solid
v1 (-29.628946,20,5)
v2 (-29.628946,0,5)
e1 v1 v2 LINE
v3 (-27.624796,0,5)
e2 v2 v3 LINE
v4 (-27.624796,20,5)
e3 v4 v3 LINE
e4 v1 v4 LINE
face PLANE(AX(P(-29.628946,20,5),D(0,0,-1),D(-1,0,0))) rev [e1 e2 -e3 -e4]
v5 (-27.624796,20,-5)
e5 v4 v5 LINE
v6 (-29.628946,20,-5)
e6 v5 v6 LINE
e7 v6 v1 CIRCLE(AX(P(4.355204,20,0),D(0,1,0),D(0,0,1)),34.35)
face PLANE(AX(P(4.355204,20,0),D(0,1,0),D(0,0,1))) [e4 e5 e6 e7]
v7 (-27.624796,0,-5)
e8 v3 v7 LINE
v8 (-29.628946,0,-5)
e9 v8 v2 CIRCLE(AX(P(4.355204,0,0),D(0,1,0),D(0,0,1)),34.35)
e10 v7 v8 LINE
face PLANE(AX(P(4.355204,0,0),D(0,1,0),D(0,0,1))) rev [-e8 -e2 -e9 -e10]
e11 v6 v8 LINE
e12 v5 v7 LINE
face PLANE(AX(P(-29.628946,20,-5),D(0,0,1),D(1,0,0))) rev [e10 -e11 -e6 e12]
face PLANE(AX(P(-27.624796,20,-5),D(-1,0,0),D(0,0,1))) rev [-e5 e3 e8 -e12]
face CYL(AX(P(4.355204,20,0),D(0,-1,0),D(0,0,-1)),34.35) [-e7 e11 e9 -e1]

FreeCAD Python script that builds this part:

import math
import FreeCAD as App
import Part
import Sketcher

doc = App.newDocument("Part")
body = doc.addObject("PartDesign::Body", "Body")

sketch1 = body.newObject("Sketcher::SketchObject", "Sketch")
sketch1.AttachmentSupport = (doc.getObject("XZ_Plane"), [""])
sketch1.MapMode = "FlatFace"
sketch1.addGeometry([
    Part.LineSegment(App.Vector(-27.6, -5, 0), App.Vector(-29.6, -5, 0)),
    Part.ArcOfCircle(Part.Circle(App.Vector(4.4, 0, 0), App.Vector(0, 0, 1), 34.4), math.radians(171.63), math.radians(188.37)),
    Part.LineSegment(App.Vector(-29.6, 5, 0), App.Vector(-27.6, 5, 0)),
    Part.LineSegment(App.Vector(-27.6, 5, 0), App.Vector(-27.6, -5, 0)),
], False)
sketch1.addConstraint([
    Sketcher.Constraint("Coincident", 0, 2, 1, 2),
    Sketcher.Constraint("Coincident", 1, 1, 2, 1),
    Sketcher.Constraint("Coincident", 2, 2, 3, 1),
    Sketcher.Constraint("Coincident", 3, 2, 0, 1),
    Sketcher.Constraint("Horizontal", 0),
    Sketcher.Constraint("Horizontal", 2),
    Sketcher.Constraint("Vertical", 3),
    Sketcher.Constraint("Symmetric", 0, 2, 1, 1, -1),
    Sketcher.Constraint("DistanceY", 3, 2, 3, 1, 10.0),
    Sketcher.Constraint("Radius", 1, 34.35),
    Sketcher.Constraint("DistanceX", 2, 2, 1, 3, 31.98),
    Sketcher.Constraint("DistanceX", -1, 1, 1, 3, 4.355204),
])
pad1 = body.newObject("PartDesign::Pad", "Pad")
pad1.Profile = sketch1
pad1.Length = 20
pad1.Reversed = True

doc.recompute()
